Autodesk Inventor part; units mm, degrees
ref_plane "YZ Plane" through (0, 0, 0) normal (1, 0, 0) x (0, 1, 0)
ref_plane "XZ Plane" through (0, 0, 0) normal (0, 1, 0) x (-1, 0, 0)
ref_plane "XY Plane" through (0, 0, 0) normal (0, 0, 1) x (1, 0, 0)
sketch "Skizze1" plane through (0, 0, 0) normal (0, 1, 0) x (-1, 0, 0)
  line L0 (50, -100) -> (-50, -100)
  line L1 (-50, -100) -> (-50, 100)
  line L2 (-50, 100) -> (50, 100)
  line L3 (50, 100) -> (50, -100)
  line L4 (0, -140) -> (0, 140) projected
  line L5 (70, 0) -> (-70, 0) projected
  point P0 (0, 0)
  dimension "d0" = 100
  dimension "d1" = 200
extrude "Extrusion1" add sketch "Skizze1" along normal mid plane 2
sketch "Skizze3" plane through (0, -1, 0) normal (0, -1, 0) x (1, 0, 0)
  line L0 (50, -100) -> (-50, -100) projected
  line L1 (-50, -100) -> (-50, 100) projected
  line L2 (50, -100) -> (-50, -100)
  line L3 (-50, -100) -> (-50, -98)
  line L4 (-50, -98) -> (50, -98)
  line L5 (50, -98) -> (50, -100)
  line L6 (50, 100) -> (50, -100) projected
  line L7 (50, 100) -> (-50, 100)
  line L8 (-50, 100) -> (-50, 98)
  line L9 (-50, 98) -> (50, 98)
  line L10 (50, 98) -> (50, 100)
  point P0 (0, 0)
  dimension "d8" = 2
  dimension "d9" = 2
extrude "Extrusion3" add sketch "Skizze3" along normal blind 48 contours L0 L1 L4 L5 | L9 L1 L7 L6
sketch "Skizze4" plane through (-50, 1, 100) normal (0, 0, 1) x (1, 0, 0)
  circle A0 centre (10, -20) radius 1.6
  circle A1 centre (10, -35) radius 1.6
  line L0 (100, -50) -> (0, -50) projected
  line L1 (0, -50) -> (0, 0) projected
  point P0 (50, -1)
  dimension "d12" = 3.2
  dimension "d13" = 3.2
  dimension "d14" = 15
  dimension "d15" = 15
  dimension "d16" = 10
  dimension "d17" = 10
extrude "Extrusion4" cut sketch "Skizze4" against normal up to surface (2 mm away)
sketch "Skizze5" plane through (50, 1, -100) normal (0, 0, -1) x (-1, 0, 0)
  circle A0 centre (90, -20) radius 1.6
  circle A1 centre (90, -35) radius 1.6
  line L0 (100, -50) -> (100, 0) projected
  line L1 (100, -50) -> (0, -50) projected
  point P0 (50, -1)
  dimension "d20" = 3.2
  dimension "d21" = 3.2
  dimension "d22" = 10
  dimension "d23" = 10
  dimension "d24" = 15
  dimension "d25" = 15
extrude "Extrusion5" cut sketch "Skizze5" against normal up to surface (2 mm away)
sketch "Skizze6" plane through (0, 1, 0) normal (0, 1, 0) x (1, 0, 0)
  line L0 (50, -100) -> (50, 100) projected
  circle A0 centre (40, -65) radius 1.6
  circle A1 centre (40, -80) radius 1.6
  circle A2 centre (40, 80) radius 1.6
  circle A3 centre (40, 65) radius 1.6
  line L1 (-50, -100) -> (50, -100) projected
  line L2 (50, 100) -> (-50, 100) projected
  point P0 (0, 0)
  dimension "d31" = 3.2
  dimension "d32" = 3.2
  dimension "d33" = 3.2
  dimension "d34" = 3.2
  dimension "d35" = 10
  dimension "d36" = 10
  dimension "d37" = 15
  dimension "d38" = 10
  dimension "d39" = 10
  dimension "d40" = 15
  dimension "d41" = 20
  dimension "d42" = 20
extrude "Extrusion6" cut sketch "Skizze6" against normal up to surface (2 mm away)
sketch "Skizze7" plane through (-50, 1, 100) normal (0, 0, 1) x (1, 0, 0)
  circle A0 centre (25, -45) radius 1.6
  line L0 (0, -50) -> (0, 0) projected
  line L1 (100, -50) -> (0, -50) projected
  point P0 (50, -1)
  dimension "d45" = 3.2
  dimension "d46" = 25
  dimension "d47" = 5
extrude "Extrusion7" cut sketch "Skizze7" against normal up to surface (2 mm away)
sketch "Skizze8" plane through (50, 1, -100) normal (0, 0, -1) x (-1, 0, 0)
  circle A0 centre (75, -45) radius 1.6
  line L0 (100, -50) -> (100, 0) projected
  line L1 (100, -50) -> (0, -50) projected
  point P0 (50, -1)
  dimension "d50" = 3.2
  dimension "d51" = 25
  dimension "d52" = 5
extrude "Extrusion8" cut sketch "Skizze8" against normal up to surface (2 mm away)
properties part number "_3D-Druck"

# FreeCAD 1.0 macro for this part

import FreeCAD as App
import Part
import Sketcher

V = App.Vector

doc = App.newDocument("Part")
body = doc.addObject("PartDesign::Body", "Body")

# Sketch on XZ plane
sketch1 = doc.addObject("Sketcher::SketchObject", "Sketch")
body.addObject(sketch1)
sketch1.AttachmentSupport = (doc.XZ_Plane, [""])
sketch1.MapMode = "FlatFace"
sketch1.addGeometry([
    Part.LineSegment(V(-50, -100, 0), V(-50, 100, 0)),
    Part.LineSegment(V(-50, 100, 0), V(50, 100, 0)),
    Part.LineSegment(V(50, 100, 0), V(50, -100, 0)),
    Part.LineSegment(V(50, -100, 0), V(-50, -100, 0)),
], False)
sketch1.addConstraint([
    Sketcher.Constraint("Coincident", 0, 2, 1, 1),
    Sketcher.Constraint("Coincident", 1, 2, 2, 1),
    Sketcher.Constraint("Coincident", 2, 2, 3, 1),
    Sketcher.Constraint("Coincident", 3, 2, 0, 1),
    Sketcher.Constraint("Vertical", 0),
    Sketcher.Constraint("Horizontal", 1),
    Sketcher.Constraint("Vertical", 2),
    Sketcher.Constraint("Horizontal", 3),
    Sketcher.Constraint("Symmetric", 0, 2, 2, 2, -1, 1),
    Sketcher.Constraint("DistanceX", 1, 1, 1, 2, 100.0),
    Sketcher.Constraint("DistanceY", 0, 1, 0, 2, 200.0),
])
pad1 = doc.addObject("PartDesign::Pad", "Pad")
body.addObject(pad1)
pad1.Profile = sketch1
pad1.Length = 2
pad1.Midplane = True

# Sketch on XZ plane
sketch2 = doc.addObject("Sketcher::SketchObject", "Sketch001")
body.addObject(sketch2)
sketch2.AttachmentSupport = (doc.XZ_Plane, [""])
sketch2.MapMode = "FlatFace"
sketch2.AttachmentOffset = App.Placement(V(0, 0, 1), App.Rotation())
sketch2.addGeometry([
    Part.LineSegment(V(-50, -100, 0), V(50, -100, 0)),  # 0
    Part.LineSegment(V(50, -100, 0), V(50, -98, 0)),  # 1
    Part.LineSegment(V(50, -98, 0), V(-50, -98, 0)),  # 2
    Part.LineSegment(V(-50, -98, 0), V(-50, -100, 0)),  # 3
    Part.LineSegment(V(-50, 98, 0), V(50, 98, 0)),  # 4
    Part.LineSegment(V(50, 98, 0), V(50, 100, 0)),  # 5
    Part.LineSegment(V(50, 100, 0), V(-50, 100, 0)),  # 6
    Part.LineSegment(V(-50, 100, 0), V(-50, 98, 0)),  # 7
], False)
sketch2.addConstraint([
    Sketcher.Constraint("Coincident", 0, 2, 1, 1),
    Sketcher.Constraint("Coincident", 1, 2, 2, 1),
    Sketcher.Constraint("Coincident", 2, 2, 3, 1),
    Sketcher.Constraint("Coincident", 3, 2, 0, 1),
    Sketcher.Constraint("Coincident", 4, 2, 5, 1),
    Sketcher.Constraint("Coincident", 5, 2, 6, 1),
    Sketcher.Constraint("Coincident", 6, 2, 7, 1),
    Sketcher.Constraint("Coincident", 7, 2, 4, 1),
    Sketcher.Constraint("Horizontal", 0),
    Sketcher.Constraint("Vertical", 1),
    Sketcher.Constraint("Horizontal", 2),
    Sketcher.Constraint("Vertical", 3),
    Sketcher.Constraint("Horizontal", 4),
    Sketcher.Constraint("Vertical", 5),
    Sketcher.Constraint("Horizontal", 6),
    Sketcher.Constraint("Vertical", 7),
    Sketcher.Constraint("Symmetric", 2, 2, 4, 2, -1, 1),
    Sketcher.Constraint("Symmetric", 0, 2, 6, 2, -1, 1),
    Sketcher.Constraint("Vertical", 1, 2, 4, 2),
    Sketcher.Constraint("DistanceY", 1, 1, 1, 2, 2.0),
    Sketcher.Constraint("DistanceX", 0, 1, 0, 2, 100.0),
    Sketcher.Constraint("DistanceY", 0, 2, -1, 1, 100.0),
])
pad2 = doc.addObject("PartDesign::Pad", "Pad001")
body.addObject(pad2)
pad2.Profile = sketch2
pad2.Length = 48

# Sketch on XY plane
sketch3 = doc.addObject("Sketcher::SketchObject", "Sketch002")
body.addObject(sketch3)
sketch3.AttachmentSupport = (doc.XY_Plane, [""])
sketch3.MapMode = "FlatFace"
sketch3.AttachmentOffset = App.Placement(V(0, 0, 100), App.Rotation())
sketch3.addGeometry([
    Part.Circle(V(-40, -19, 0), V(0, 0, 1), 1.6),
    Part.Circle(V(-40, -34, 0), V(0, 0, 1), 1.6),
], False)
sketch3.addConstraint([
    Sketcher.Constraint("Equal", 0, 1),
    Sketcher.Constraint("Vertical", 0, 3, 1, 3),
    Sketcher.Constraint("Diameter", 0, 3.2),
    Sketcher.Constraint("DistanceY", 1, 3, 0, 3, 15.0),
    Sketcher.Constraint("DistanceX", 0, 3, -1, 1, 40.0),
    Sketcher.Constraint("DistanceY", 0, 3, -1, 1, 19.0),
])
pocket1 = doc.addObject("PartDesign::Pocket", "Pocket")
body.addObject(pocket1)
pocket1.Profile = sketch3
pocket1.Length = 2

# Sketch on XY plane
sketch4 = doc.addObject("Sketcher::SketchObject", "Sketch003")
body.addObject(sketch4)
sketch4.AttachmentSupport = (doc.XY_Plane, [""])
sketch4.MapMode = "FlatFace"
sketch4.AttachmentOffset = App.Placement(V(0, 0, -100), App.Rotation())
sketch4.addGeometry([
    Part.Circle(V(-40, -19, 0), V(0, 0, 1), 1.6),
    Part.Circle(V(-40, -34, 0), V(0, 0, 1), 1.6),
], False)
sketch4.addConstraint([
    Sketcher.Constraint("Equal", 0, 1),
    Sketcher.Constraint("Vertical", 0, 3, 1, 3),
    Sketcher.Constraint("Diameter", 0, 3.2),
    Sketcher.Constraint("DistanceY", 1, 3, 0, 3, 15.0),
    Sketcher.Constraint("DistanceX", 0, 3, -1, 1, 40.0),
    Sketcher.Constraint("DistanceY", 0, 3, -1, 1, 19.0),
])
pocket2 = doc.addObject("PartDesign::Pocket", "Pocket001")
body.addObject(pocket2)
pocket2.Profile = sketch4
pocket2.Length = 2
pocket2.Reversed = True

# Sketch on XZ plane
sketch5 = doc.addObject("Sketcher::SketchObject", "Sketch004")
body.addObject(sketch5)
sketch5.AttachmentSupport = (doc.XZ_Plane, [""])
sketch5.MapMode = "FlatFace"
sketch5.AttachmentOffset = App.Placement(V(0, 0, -1), App.Rotation())
sketch5.addGeometry([
    Part.Circle(V(40, 65, 0), V(0, 0, 1), 1.6),
    Part.Circle(V(40, 80, 0), V(0, 0, 1), 1.6),
    Part.Circle(V(40, -80, 0), V(0, 0, 1), 1.6),
    Part.Circle(V(40, -65, 0), V(0, 0, 1), 1.6),
], False)
sketch5.addConstraint([
    Sketcher.Constraint("Equal", 0, 1),
    Sketcher.Constraint("Equal", 1, 2),
    Sketcher.Constraint("Equal", 2, 3),
    Sketcher.Constraint("Symmetric", 1, 3, 2, 3, -1),
    Sketcher.Constraint("Symmetric", 0, 3, 3, 3, -1),
    Sketcher.Constraint("Vertical", 0, 3, 1, 3),
    Sketcher.Constraint("Diameter", 0, 3.2),
    Sketcher.Constraint("DistanceY", 0, 3, 1, 3, 15.0),
    Sketcher.Constraint("DistanceX", -1, 1, 0, 3, 40.0),
    Sketcher.Constraint("DistanceY", -1, 1, 0, 3, 65.0),
])
pocket3 = doc.addObject("PartDesign::Pocket", "Pocket002")
body.addObject(pocket3)
pocket3.Profile = sketch5
pocket3.Length = 2
pocket3.Reversed = True

# Sketch on XY plane
sketch6 = doc.addObject("Sketcher::SketchObject", "Sketch005")
body.addObject(sketch6)
sketch6.AttachmentSupport = (doc.XY_Plane, [""])
sketch6.MapMode = "FlatFace"
sketch6.AttachmentOffset = App.Placement(V(0, 0, 100), App.Rotation())
sketch6.addGeometry(Part.Circle(V(-25, -44, 0), V(0, 0, 1), 1.6), False)
sketch6.addConstraint([
    Sketcher.Constraint("Diameter", 0, 3.2),
    Sketcher.Constraint("DistanceX", 0, 3, -1, 1, 25.0),
    Sketcher.Constraint("DistanceY", 0, 3, -1, 1, 44.0),
])
pocket4 = doc.addObject("PartDesign::Pocket", "Pocket003")
body.addObject(pocket4)
pocket4.Profile = sketch6
pocket4.Length = 2

# Sketch on XY plane
sketch7 = doc.addObject("Sketcher::SketchObject", "Sketch006")
body.addObject(sketch7)
sketch7.AttachmentSupport = (doc.XY_Plane, [""])
sketch7.MapMode = "FlatFace"
sketch7.AttachmentOffset = App.Placement(V(0, 0, -100), App.Rotation())
sketch7.addGeometry(Part.Circle(V(-25, -44, 0), V(0, 0, 1), 1.6), False)
sketch7.addConstraint([
    Sketcher.Constraint("Diameter", 0, 3.2),
    Sketcher.Constraint("DistanceX", 0, 3, -1, 1, 25.0),
    Sketcher.Constraint("DistanceY", 0, 3, -1, 1, 44.0),
])
pocket5 = doc.addObject("PartDesign::Pocket", "Pocket004")
body.addObject(pocket5)
pocket5.Profile = sketch7
pocket5.Length = 2
pocket5.Reversed = True

doc.recompute()
